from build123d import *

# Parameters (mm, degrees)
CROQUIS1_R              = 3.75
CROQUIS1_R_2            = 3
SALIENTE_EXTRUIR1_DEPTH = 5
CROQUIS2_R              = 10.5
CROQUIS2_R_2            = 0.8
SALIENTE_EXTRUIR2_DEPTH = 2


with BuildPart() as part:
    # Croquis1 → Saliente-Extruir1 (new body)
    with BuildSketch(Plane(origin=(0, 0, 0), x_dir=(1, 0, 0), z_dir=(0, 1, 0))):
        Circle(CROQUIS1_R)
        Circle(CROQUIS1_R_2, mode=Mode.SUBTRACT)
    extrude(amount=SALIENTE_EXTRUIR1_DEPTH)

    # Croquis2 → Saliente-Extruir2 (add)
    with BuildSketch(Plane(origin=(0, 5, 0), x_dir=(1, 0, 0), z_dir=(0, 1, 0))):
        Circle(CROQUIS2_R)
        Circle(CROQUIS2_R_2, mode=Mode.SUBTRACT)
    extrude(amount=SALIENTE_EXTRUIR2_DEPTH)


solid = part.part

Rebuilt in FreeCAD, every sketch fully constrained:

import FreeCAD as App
import Part
import Sketcher
from FreeCAD import Vector
Q = App.Units.Quantity

doc = App.newDocument("Part")
body = doc.addObject("PartDesign::Body", "Body")

sketch1 = body.newObject("Sketcher::SketchObject", "Sketch")
sketch1.AttachmentSupport = (doc.getObject("XZ_Plane"), [""])
sketch1.MapMode = "FlatFace"
sketch1.addGeometry([
    Part.Circle(Vector(0, 0, 0), Vector(0, 0, 1), 3.8),
    Part.Circle(Vector(0, 0, 0), Vector(0, 0, 1), 3),
], False)
sketch1.addConstraint([
    Sketcher.Constraint("Coincident", 0, 3, -1, 1),
    Sketcher.Constraint("Coincident", 1, 3, -1, 1),
    Sketcher.Constraint("Diameter", 1, Q("6 mm")),
    Sketcher.Constraint("Diameter", 0, Q("7.5 mm")),
])
pad1 = body.newObject("PartDesign::Pad", "Pad")
pad1.Profile = sketch1
pad1.Length = 5
pad1.Reversed = True

sketch2 = body.newObject("Sketcher::SketchObject", "Sketch001")
sketch2.AttachmentSupport = (doc.getObject("XZ_Plane"), [""])
sketch2.MapMode = "FlatFace"
sketch2.AttachmentOffset = App.Placement(Vector(0, 0, -5), App.Rotation())
sketch2.addGeometry([
    Part.Circle(Vector(0, 0, 0), Vector(0, 0, 1), 10.5),
    Part.Circle(Vector(0, 0, 0), Vector(0, 0, 1), 0.8),
], False)
sketch2.addConstraint([
    Sketcher.Constraint("Coincident", 0, 3, -1, 1),
    Sketcher.Constraint("Coincident", 1, 3, -1, 1),
    Sketcher.Constraint("Diameter", 0, Q("21 mm")),
    Sketcher.Constraint("Diameter", 1, Q("1.6 mm")),
])
pad2 = body.newObject("PartDesign::Pad", "Pad001")
pad2.Profile = sketch2
pad2.Length = 2
pad2.Reversed = True

doc.recompute()
